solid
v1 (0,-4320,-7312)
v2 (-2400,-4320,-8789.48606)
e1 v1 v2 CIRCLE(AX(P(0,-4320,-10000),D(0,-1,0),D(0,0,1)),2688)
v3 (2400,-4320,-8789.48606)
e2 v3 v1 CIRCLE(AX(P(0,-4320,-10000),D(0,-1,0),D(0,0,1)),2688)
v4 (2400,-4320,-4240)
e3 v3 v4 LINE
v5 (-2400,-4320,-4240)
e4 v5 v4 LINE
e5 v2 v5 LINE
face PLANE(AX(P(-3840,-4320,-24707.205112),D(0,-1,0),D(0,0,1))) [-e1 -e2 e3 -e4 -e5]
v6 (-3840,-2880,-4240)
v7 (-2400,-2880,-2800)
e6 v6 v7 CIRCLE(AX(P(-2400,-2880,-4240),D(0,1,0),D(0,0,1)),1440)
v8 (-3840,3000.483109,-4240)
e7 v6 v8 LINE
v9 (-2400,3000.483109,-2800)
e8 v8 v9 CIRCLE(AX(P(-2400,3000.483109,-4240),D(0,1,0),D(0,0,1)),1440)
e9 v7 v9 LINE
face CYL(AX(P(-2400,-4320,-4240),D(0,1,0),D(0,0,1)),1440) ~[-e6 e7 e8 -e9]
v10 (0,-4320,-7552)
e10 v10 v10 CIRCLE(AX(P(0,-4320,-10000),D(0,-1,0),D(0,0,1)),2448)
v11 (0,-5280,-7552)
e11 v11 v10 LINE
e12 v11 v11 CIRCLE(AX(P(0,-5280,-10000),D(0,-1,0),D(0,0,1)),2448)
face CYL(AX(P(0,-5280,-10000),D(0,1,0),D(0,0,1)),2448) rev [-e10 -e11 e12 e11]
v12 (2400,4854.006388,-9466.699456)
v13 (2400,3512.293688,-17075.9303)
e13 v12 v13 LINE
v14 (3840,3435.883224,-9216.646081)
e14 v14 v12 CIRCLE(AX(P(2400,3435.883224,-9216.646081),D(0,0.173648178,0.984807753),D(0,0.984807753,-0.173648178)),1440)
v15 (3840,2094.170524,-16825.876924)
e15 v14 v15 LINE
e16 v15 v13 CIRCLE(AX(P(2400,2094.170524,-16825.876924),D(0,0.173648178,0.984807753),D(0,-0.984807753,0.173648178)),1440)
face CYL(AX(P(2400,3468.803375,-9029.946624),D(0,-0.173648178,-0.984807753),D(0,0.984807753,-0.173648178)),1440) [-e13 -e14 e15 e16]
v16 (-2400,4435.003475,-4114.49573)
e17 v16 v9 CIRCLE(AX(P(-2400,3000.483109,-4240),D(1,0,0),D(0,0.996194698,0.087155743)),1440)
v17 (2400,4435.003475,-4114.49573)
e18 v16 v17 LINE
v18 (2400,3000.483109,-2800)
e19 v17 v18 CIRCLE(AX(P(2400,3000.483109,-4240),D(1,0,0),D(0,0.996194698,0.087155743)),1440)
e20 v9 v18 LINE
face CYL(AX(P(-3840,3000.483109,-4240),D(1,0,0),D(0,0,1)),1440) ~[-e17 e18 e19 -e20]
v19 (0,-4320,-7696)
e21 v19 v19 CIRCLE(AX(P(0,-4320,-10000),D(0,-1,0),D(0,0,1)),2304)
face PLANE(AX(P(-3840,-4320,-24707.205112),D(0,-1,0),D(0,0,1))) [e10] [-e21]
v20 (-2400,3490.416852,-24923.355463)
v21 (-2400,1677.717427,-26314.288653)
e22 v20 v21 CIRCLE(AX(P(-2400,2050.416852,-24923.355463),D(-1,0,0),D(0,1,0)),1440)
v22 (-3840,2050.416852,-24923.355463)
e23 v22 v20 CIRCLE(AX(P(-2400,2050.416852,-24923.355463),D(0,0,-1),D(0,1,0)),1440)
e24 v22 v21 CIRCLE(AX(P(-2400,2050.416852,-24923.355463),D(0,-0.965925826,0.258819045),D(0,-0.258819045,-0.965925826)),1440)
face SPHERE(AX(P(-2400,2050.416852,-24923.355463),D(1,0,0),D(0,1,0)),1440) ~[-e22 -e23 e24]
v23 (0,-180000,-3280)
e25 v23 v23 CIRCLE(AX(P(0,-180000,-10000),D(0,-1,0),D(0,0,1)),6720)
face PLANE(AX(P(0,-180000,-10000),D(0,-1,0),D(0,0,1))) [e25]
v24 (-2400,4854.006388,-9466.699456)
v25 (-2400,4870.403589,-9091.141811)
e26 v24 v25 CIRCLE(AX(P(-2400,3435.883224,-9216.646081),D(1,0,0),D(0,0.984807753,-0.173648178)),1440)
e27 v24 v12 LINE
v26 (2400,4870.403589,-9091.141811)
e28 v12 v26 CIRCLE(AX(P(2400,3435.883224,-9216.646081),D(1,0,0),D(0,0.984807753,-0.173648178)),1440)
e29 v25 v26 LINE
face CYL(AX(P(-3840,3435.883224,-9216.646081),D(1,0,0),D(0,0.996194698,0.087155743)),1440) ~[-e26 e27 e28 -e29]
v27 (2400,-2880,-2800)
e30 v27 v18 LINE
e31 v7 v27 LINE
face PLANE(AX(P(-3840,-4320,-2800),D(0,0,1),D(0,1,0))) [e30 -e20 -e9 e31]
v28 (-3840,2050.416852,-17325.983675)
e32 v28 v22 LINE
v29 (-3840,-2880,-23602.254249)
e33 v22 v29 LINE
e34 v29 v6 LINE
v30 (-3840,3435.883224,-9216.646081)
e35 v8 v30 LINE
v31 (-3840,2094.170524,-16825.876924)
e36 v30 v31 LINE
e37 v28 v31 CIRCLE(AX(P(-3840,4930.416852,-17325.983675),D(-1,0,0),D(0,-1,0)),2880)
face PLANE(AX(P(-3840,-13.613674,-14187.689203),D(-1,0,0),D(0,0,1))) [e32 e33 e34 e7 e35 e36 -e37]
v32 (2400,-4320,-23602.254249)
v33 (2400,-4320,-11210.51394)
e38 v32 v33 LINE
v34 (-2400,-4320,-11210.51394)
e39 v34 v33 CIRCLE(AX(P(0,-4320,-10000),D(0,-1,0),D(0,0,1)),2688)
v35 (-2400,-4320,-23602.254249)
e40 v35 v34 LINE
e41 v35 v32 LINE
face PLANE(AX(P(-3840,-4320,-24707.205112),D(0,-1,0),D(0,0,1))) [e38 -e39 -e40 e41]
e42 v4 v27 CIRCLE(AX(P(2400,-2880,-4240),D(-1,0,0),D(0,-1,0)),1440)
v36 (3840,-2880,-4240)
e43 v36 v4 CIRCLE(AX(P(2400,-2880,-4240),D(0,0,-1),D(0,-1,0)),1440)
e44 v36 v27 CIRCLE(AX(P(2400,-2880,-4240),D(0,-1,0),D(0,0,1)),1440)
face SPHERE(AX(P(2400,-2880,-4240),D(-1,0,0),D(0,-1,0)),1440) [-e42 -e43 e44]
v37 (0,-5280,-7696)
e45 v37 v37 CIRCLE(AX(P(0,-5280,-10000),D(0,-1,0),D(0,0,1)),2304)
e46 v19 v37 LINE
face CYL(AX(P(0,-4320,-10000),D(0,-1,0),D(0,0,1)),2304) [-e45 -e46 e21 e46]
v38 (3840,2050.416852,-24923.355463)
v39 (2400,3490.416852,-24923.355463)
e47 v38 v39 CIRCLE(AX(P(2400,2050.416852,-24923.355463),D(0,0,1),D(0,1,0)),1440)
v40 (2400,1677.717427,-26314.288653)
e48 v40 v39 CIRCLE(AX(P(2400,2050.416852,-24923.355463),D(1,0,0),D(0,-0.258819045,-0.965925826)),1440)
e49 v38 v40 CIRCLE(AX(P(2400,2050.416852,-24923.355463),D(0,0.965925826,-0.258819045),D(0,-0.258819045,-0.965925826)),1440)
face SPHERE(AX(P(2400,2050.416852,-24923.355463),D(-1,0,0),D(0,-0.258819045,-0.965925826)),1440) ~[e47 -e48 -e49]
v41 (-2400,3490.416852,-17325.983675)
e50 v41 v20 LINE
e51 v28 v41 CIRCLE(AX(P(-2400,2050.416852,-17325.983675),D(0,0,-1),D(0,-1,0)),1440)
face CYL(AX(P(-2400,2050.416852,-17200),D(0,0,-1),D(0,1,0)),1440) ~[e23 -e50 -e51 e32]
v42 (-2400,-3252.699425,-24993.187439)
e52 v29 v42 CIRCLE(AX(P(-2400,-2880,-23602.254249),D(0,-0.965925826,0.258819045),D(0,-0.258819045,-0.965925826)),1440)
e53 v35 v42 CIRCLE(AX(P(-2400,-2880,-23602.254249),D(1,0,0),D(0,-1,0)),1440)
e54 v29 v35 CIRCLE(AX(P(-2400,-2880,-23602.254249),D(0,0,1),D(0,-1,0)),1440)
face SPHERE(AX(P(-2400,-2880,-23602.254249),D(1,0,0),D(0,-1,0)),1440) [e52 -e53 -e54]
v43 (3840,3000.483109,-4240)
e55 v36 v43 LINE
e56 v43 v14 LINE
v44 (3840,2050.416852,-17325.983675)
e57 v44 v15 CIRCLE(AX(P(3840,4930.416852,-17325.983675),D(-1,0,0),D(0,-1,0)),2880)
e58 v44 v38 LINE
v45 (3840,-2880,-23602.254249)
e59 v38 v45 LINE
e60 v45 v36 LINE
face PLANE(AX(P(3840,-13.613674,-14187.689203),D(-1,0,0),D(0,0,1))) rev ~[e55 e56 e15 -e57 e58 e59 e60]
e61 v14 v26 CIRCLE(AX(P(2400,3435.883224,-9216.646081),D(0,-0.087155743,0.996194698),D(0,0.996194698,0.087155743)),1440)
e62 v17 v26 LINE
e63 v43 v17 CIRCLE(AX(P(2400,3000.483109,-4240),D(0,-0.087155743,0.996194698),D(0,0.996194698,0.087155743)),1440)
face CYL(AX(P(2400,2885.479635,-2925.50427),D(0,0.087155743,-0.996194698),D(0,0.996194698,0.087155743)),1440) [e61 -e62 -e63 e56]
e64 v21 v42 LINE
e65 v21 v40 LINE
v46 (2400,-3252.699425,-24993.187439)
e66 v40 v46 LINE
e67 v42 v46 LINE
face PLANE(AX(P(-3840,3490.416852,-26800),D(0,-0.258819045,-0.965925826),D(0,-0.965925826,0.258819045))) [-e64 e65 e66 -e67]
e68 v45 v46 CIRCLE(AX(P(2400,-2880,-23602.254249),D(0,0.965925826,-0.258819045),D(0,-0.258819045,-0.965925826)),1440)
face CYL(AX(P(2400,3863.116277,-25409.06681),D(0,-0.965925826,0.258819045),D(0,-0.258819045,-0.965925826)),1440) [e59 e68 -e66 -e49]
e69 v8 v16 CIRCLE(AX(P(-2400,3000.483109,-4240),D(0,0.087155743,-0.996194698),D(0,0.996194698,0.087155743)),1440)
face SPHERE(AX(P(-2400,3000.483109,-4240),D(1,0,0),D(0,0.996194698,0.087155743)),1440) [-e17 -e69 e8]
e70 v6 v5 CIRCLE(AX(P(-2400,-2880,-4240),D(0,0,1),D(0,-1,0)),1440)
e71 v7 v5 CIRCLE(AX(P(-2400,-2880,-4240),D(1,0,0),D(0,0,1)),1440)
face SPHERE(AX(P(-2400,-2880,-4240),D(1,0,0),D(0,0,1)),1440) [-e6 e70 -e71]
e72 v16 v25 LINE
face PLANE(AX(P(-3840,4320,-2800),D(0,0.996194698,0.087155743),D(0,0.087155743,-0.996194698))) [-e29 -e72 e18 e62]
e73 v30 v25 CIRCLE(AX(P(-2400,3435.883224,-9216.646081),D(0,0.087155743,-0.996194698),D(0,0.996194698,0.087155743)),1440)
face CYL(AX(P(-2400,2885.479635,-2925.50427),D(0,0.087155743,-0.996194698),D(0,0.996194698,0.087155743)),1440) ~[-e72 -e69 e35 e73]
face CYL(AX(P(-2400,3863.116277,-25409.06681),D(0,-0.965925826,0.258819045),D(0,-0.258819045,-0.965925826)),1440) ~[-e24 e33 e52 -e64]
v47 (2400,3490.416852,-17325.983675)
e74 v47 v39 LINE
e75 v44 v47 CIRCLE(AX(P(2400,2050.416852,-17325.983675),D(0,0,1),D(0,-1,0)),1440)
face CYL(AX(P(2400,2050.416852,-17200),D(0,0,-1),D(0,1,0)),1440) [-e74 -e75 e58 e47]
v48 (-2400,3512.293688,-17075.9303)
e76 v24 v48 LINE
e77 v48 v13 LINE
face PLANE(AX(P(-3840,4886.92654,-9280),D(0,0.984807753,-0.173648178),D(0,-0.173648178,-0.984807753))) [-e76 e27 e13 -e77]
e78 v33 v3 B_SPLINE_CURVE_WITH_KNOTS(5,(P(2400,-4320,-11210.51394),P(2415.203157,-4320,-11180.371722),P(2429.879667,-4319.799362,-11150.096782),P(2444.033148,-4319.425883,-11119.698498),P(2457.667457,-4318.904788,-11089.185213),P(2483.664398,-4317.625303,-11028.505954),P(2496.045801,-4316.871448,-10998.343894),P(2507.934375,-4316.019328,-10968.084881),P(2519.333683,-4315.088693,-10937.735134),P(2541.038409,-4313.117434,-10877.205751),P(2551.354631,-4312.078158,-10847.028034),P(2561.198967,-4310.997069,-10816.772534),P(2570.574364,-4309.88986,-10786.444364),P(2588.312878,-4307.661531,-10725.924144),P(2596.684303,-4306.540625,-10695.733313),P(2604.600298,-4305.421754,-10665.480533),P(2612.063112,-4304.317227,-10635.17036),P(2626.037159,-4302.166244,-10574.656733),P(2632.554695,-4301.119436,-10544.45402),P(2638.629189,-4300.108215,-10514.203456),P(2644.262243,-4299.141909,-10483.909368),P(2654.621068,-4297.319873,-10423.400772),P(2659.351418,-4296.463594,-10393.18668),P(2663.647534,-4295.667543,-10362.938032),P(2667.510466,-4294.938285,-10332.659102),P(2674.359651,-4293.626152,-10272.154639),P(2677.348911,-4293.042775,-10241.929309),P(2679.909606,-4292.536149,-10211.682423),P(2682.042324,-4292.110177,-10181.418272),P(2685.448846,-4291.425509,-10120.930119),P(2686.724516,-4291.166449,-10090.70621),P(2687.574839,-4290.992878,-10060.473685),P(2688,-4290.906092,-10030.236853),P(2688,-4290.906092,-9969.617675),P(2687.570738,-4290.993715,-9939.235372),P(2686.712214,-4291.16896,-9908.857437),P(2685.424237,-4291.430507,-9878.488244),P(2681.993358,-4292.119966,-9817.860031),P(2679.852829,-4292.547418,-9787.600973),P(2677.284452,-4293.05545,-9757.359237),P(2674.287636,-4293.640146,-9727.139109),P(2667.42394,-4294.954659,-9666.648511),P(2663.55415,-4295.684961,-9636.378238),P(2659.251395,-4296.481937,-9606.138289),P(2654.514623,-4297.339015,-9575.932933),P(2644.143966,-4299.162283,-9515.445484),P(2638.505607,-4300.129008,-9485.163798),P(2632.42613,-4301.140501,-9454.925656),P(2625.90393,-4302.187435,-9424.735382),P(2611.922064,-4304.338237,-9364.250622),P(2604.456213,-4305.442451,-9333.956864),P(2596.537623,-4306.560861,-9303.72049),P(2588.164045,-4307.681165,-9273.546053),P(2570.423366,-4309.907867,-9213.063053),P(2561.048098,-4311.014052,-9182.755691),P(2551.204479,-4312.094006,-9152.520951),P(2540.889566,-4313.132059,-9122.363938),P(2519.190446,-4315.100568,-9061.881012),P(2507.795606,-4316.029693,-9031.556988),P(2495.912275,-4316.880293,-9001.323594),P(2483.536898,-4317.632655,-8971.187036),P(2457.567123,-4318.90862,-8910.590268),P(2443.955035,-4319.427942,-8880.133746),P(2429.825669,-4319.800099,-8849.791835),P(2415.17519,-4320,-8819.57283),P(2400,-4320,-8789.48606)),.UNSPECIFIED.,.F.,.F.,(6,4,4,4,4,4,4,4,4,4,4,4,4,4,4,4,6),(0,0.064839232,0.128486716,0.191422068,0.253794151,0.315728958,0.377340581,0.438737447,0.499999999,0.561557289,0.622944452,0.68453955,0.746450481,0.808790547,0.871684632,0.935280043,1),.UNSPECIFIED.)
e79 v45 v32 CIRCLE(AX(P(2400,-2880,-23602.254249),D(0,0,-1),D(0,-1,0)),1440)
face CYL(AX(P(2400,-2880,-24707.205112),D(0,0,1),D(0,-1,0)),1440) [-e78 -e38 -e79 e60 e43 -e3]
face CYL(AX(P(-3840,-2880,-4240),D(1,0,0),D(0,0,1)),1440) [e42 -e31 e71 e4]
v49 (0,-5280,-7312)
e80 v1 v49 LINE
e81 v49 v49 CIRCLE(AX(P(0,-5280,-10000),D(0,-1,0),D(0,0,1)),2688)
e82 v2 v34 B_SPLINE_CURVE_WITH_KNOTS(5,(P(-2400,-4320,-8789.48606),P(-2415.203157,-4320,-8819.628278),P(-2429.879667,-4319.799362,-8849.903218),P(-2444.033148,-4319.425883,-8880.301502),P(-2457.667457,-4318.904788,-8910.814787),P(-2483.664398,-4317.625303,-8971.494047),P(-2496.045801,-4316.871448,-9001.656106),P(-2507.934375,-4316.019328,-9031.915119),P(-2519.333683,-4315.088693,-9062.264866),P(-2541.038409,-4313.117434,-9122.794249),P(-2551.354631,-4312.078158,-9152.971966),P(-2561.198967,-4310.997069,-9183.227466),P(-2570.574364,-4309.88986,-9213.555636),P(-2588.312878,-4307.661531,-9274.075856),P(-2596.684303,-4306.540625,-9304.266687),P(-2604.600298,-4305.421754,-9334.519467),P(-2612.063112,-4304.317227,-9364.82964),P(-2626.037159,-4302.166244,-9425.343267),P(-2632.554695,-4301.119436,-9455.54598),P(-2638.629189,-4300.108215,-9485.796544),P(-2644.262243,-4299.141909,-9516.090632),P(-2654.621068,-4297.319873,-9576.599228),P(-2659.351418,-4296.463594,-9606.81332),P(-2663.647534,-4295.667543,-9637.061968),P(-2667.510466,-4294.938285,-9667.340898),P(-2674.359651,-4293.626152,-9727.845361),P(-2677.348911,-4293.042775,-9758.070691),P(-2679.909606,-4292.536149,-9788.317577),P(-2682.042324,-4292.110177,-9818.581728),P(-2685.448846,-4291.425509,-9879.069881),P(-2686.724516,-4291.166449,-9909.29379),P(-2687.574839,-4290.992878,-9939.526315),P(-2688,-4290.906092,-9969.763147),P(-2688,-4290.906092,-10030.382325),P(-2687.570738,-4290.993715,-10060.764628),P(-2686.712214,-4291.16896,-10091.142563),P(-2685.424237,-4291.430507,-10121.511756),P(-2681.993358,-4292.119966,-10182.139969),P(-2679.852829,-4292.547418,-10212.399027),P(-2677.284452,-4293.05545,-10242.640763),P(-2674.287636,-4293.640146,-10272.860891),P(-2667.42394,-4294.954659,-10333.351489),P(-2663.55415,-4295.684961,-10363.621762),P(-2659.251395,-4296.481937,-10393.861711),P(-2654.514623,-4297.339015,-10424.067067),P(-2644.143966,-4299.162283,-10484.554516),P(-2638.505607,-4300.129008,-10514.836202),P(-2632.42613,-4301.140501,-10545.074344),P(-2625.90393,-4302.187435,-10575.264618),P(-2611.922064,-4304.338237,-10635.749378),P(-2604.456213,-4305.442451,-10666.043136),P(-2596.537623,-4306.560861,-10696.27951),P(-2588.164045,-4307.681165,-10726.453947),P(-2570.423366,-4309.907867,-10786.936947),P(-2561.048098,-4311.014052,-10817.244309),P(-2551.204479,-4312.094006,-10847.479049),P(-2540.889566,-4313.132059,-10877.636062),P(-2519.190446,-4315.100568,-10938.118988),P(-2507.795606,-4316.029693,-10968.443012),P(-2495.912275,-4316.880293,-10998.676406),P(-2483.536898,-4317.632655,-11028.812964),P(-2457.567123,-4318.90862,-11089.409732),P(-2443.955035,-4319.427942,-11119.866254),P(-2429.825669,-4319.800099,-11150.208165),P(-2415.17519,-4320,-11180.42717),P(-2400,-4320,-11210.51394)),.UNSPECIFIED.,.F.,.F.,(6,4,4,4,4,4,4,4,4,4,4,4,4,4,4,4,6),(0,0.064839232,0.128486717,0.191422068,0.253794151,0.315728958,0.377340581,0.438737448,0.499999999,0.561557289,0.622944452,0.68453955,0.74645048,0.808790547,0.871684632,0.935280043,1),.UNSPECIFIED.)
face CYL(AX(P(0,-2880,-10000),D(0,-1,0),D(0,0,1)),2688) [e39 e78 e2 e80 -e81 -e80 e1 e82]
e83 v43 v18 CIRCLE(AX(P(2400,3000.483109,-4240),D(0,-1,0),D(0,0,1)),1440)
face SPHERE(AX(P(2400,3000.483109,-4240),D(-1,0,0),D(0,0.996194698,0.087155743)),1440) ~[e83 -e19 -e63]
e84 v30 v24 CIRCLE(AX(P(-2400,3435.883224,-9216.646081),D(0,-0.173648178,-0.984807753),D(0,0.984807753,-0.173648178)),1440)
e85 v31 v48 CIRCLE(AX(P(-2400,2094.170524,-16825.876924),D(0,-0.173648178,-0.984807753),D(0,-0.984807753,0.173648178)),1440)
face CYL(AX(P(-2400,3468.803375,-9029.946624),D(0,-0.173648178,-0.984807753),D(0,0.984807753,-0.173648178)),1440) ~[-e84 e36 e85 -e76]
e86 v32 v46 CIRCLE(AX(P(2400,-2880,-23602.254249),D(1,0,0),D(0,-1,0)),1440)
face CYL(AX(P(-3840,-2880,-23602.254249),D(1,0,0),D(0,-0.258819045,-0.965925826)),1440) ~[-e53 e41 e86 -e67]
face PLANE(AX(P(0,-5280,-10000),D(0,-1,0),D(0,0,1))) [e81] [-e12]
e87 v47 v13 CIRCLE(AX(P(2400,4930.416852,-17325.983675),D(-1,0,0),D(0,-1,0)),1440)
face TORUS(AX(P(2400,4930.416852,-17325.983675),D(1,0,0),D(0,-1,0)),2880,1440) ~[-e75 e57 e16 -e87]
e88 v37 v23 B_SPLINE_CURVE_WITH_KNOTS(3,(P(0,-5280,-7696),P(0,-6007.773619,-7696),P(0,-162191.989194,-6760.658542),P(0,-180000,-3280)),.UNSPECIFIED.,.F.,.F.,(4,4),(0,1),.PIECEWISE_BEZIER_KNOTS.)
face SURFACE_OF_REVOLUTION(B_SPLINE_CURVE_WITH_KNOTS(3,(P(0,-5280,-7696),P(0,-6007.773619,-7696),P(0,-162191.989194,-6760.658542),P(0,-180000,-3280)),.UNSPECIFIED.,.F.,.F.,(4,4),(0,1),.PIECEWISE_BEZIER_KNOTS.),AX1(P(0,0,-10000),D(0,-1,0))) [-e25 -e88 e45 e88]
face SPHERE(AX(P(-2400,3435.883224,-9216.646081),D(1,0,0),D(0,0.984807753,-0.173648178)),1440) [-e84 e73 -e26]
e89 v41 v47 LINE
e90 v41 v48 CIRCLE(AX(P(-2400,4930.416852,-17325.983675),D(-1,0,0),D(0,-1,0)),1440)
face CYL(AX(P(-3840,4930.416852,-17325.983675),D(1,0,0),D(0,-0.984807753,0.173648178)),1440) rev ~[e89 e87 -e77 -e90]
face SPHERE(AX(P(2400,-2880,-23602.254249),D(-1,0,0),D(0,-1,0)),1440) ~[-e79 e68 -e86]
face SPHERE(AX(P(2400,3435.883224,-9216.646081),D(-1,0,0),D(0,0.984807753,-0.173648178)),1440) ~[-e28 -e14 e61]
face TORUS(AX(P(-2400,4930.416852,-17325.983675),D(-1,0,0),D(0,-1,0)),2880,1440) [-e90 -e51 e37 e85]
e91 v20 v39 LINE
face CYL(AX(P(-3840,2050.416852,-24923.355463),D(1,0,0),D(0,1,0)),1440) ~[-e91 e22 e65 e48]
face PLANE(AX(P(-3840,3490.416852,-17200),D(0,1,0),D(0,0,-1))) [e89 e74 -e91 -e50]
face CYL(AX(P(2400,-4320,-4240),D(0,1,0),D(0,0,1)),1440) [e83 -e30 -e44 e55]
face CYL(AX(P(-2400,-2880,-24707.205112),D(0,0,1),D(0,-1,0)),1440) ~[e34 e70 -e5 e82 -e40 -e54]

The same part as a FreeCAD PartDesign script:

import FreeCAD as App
import Part
import Sketcher
from FreeCAD import Vector
Q = App.Units.Quantity


def add_polygon(sketch, points):
    """Adds a closed chain of lines whose ends are joined by coincident constraints."""
    first, n = sketch.GeometryCount, len(points)
    for a, b in zip(points, points[1:] + points[:1]):
        sketch.addGeometry(Part.LineSegment(App.Vector(*a, 0), App.Vector(*b, 0)), False)
    for i in range(n):
        sketch.addConstraint(Sketcher.Constraint("Coincident", first + i, 2, first + (i + 1) % n, 1))

doc = App.newDocument("Part")
body = doc.addObject("PartDesign::Body", "Body")

sketch1 = doc.addObject("Sketcher::SketchObject", "Sketch")
body.addObject(sketch1)
sketch1.AttachmentSupport = (doc.YZ_Plane, [""])
sketch1.MapMode = "FlatFace"
add_polygon(sketch1, [(4320, -2800), (-4320, -2800), (-4320, -24707), (3490, -26800), (3490, -17200), (4887, -9280)])
sketch1.addConstraint([
    Sketcher.Constraint("Horizontal", 0),
    Sketcher.Constraint("Vertical", 1),
    Sketcher.Constraint("Vertical", 3),
    Sketcher.Constraint("DistanceX", 0, 2, 0, 1, 8640.0),
    Sketcher.Constraint("DistanceY", 3, 1, 3, 2, 9600.0),
    Sketcher.Constraint("Angle", 2, Q("-15 deg")),
    Sketcher.Constraint("Angle", 4, Q("80 deg")),
    Sketcher.Constraint("Angle", 5, Q("95 deg")),
    Sketcher.Constraint("DistanceX", 0, 2, -1, 1, 4320.0),
    Sketcher.Constraint("DistanceY", 0, 2, -1, 1, 2800.0),
    Sketcher.Constraint("DistanceY", 2, 2, -1, 1, 26800.0),
    Sketcher.Constraint("DistanceY", 4, 2, -1, 1, 9280.0),
])
pad1 = doc.addObject("PartDesign::Pad", "Pad")
body.addObject(pad1)
pad1.Profile = sketch1
pad1.Type = "TwoLengths"
pad1.Length = 3840
pad1.Length2 = 3840
doc.recompute()

fillet = doc.addObject("PartDesign::Fillet", "Fillet")
body.addObject(fillet)
fillet.Base = (pad1, ["Edge1"])
fillet.UseAllEdges = True
fillet.Radius = 1440

sketch2 = doc.addObject("Sketcher::SketchObject", "Sketch001")
body.addObject(sketch2)
sketch2.AttachmentSupport = (doc.YZ_Plane, [""])
sketch2.MapMode = "FlatFace"
sketch2.addGeometry([
    Part.LineSegment(Vector(-2880, -10000, 0), Vector(-2880, -7312, 0)),
    Part.LineSegment(Vector(-2880, -7312, 0), Vector(-5280, -7312, 0)),
    Part.LineSegment(Vector(-5280, -7312, 0), Vector(-5280, -7552, 0)),
    Part.LineSegment(Vector(-5280, -7552, 0), Vector(-4320, -7552, 0)),
    Part.LineSegment(Vector(-4320, -7552, 0), Vector(-4320, -7696, 0)),
    Part.LineSegment(Vector(-4320, -7696, 0), Vector(-5280, -7696, 0)),
    Part.BSplineCurve([Vector(-5280, -7696, 0), Vector(-6007.773619, -7696, 0), Vector(-162191.989194, -6760.658542, 0), Vector(-180000, -3280, 0)], [4, 4], [0, 1], False, 3, [1, 1, 1, 1], False),
    Part.LineSegment(Vector(-180000, -3280, 0), Vector(-180000, -10000, 0)),
    Part.LineSegment(Vector(-180000, -10000, 0), Vector(-2880, -10000, 0)),
], False)
sketch2.addGeometry(Part.LineSegment(Vector(-2880, -10000, 0), Vector(-180000, -10000, 0)), True)
sketch2.addConstraint([
    Sketcher.Constraint("Block", 6),
    Sketcher.Constraint("Coincident", 0, 2, 1, 1),
    Sketcher.Constraint("Coincident", 1, 2, 2, 1),
    Sketcher.Constraint("Coincident", 2, 2, 3, 1),
    Sketcher.Constraint("Coincident", 3, 2, 4, 1),
    Sketcher.Constraint("Coincident", 4, 2, 5, 1),
    Sketcher.Constraint("Coincident", 5, 2, 6, 1),
    Sketcher.Constraint("Coincident", 6, 2, 7, 1),
    Sketcher.Constraint("Coincident", 7, 2, 8, 1),
    Sketcher.Constraint("Coincident", 8, 2, 0, 1),
    Sketcher.Constraint("Vertical", 0),
    Sketcher.Constraint("Horizontal", 1),
    Sketcher.Constraint("Vertical", 2),
    Sketcher.Constraint("Horizontal", 3),
    Sketcher.Constraint("Vertical", 4),
    Sketcher.Constraint("Horizontal", 5),
    Sketcher.Constraint("Vertical", 7),
    Sketcher.Constraint("Horizontal", 8),
    Sketcher.Constraint("Horizontal", 9),
    Sketcher.Constraint("Coincident", 9, 1, 8, 2),
    Sketcher.Constraint("Vertical", 2, 2, 5, 2),
    Sketcher.Constraint("Equal", 8, 9),
    Sketcher.Constraint("DistanceX", 1, 2, 1, 1, 2400.0),
    Sketcher.Constraint("DistanceX", 3, 1, 3, 2, 960.0),
    Sketcher.Constraint("DistanceY", 0, 1, 0, 2, 2688.0),
    Sketcher.Constraint("DistanceY", 2, 2, 2, 1, 240.0),
    Sketcher.Constraint("DistanceY", 4, 2, 4, 1, 144.0),
])
revolution = doc.addObject("PartDesign::Revolution", "Revolution")
body.addObject(revolution)
revolution.Profile = sketch2
revolution.ReferenceAxis = (sketch2, ["Axis0"])
revolution.Angle = 360

doc.recompute()
